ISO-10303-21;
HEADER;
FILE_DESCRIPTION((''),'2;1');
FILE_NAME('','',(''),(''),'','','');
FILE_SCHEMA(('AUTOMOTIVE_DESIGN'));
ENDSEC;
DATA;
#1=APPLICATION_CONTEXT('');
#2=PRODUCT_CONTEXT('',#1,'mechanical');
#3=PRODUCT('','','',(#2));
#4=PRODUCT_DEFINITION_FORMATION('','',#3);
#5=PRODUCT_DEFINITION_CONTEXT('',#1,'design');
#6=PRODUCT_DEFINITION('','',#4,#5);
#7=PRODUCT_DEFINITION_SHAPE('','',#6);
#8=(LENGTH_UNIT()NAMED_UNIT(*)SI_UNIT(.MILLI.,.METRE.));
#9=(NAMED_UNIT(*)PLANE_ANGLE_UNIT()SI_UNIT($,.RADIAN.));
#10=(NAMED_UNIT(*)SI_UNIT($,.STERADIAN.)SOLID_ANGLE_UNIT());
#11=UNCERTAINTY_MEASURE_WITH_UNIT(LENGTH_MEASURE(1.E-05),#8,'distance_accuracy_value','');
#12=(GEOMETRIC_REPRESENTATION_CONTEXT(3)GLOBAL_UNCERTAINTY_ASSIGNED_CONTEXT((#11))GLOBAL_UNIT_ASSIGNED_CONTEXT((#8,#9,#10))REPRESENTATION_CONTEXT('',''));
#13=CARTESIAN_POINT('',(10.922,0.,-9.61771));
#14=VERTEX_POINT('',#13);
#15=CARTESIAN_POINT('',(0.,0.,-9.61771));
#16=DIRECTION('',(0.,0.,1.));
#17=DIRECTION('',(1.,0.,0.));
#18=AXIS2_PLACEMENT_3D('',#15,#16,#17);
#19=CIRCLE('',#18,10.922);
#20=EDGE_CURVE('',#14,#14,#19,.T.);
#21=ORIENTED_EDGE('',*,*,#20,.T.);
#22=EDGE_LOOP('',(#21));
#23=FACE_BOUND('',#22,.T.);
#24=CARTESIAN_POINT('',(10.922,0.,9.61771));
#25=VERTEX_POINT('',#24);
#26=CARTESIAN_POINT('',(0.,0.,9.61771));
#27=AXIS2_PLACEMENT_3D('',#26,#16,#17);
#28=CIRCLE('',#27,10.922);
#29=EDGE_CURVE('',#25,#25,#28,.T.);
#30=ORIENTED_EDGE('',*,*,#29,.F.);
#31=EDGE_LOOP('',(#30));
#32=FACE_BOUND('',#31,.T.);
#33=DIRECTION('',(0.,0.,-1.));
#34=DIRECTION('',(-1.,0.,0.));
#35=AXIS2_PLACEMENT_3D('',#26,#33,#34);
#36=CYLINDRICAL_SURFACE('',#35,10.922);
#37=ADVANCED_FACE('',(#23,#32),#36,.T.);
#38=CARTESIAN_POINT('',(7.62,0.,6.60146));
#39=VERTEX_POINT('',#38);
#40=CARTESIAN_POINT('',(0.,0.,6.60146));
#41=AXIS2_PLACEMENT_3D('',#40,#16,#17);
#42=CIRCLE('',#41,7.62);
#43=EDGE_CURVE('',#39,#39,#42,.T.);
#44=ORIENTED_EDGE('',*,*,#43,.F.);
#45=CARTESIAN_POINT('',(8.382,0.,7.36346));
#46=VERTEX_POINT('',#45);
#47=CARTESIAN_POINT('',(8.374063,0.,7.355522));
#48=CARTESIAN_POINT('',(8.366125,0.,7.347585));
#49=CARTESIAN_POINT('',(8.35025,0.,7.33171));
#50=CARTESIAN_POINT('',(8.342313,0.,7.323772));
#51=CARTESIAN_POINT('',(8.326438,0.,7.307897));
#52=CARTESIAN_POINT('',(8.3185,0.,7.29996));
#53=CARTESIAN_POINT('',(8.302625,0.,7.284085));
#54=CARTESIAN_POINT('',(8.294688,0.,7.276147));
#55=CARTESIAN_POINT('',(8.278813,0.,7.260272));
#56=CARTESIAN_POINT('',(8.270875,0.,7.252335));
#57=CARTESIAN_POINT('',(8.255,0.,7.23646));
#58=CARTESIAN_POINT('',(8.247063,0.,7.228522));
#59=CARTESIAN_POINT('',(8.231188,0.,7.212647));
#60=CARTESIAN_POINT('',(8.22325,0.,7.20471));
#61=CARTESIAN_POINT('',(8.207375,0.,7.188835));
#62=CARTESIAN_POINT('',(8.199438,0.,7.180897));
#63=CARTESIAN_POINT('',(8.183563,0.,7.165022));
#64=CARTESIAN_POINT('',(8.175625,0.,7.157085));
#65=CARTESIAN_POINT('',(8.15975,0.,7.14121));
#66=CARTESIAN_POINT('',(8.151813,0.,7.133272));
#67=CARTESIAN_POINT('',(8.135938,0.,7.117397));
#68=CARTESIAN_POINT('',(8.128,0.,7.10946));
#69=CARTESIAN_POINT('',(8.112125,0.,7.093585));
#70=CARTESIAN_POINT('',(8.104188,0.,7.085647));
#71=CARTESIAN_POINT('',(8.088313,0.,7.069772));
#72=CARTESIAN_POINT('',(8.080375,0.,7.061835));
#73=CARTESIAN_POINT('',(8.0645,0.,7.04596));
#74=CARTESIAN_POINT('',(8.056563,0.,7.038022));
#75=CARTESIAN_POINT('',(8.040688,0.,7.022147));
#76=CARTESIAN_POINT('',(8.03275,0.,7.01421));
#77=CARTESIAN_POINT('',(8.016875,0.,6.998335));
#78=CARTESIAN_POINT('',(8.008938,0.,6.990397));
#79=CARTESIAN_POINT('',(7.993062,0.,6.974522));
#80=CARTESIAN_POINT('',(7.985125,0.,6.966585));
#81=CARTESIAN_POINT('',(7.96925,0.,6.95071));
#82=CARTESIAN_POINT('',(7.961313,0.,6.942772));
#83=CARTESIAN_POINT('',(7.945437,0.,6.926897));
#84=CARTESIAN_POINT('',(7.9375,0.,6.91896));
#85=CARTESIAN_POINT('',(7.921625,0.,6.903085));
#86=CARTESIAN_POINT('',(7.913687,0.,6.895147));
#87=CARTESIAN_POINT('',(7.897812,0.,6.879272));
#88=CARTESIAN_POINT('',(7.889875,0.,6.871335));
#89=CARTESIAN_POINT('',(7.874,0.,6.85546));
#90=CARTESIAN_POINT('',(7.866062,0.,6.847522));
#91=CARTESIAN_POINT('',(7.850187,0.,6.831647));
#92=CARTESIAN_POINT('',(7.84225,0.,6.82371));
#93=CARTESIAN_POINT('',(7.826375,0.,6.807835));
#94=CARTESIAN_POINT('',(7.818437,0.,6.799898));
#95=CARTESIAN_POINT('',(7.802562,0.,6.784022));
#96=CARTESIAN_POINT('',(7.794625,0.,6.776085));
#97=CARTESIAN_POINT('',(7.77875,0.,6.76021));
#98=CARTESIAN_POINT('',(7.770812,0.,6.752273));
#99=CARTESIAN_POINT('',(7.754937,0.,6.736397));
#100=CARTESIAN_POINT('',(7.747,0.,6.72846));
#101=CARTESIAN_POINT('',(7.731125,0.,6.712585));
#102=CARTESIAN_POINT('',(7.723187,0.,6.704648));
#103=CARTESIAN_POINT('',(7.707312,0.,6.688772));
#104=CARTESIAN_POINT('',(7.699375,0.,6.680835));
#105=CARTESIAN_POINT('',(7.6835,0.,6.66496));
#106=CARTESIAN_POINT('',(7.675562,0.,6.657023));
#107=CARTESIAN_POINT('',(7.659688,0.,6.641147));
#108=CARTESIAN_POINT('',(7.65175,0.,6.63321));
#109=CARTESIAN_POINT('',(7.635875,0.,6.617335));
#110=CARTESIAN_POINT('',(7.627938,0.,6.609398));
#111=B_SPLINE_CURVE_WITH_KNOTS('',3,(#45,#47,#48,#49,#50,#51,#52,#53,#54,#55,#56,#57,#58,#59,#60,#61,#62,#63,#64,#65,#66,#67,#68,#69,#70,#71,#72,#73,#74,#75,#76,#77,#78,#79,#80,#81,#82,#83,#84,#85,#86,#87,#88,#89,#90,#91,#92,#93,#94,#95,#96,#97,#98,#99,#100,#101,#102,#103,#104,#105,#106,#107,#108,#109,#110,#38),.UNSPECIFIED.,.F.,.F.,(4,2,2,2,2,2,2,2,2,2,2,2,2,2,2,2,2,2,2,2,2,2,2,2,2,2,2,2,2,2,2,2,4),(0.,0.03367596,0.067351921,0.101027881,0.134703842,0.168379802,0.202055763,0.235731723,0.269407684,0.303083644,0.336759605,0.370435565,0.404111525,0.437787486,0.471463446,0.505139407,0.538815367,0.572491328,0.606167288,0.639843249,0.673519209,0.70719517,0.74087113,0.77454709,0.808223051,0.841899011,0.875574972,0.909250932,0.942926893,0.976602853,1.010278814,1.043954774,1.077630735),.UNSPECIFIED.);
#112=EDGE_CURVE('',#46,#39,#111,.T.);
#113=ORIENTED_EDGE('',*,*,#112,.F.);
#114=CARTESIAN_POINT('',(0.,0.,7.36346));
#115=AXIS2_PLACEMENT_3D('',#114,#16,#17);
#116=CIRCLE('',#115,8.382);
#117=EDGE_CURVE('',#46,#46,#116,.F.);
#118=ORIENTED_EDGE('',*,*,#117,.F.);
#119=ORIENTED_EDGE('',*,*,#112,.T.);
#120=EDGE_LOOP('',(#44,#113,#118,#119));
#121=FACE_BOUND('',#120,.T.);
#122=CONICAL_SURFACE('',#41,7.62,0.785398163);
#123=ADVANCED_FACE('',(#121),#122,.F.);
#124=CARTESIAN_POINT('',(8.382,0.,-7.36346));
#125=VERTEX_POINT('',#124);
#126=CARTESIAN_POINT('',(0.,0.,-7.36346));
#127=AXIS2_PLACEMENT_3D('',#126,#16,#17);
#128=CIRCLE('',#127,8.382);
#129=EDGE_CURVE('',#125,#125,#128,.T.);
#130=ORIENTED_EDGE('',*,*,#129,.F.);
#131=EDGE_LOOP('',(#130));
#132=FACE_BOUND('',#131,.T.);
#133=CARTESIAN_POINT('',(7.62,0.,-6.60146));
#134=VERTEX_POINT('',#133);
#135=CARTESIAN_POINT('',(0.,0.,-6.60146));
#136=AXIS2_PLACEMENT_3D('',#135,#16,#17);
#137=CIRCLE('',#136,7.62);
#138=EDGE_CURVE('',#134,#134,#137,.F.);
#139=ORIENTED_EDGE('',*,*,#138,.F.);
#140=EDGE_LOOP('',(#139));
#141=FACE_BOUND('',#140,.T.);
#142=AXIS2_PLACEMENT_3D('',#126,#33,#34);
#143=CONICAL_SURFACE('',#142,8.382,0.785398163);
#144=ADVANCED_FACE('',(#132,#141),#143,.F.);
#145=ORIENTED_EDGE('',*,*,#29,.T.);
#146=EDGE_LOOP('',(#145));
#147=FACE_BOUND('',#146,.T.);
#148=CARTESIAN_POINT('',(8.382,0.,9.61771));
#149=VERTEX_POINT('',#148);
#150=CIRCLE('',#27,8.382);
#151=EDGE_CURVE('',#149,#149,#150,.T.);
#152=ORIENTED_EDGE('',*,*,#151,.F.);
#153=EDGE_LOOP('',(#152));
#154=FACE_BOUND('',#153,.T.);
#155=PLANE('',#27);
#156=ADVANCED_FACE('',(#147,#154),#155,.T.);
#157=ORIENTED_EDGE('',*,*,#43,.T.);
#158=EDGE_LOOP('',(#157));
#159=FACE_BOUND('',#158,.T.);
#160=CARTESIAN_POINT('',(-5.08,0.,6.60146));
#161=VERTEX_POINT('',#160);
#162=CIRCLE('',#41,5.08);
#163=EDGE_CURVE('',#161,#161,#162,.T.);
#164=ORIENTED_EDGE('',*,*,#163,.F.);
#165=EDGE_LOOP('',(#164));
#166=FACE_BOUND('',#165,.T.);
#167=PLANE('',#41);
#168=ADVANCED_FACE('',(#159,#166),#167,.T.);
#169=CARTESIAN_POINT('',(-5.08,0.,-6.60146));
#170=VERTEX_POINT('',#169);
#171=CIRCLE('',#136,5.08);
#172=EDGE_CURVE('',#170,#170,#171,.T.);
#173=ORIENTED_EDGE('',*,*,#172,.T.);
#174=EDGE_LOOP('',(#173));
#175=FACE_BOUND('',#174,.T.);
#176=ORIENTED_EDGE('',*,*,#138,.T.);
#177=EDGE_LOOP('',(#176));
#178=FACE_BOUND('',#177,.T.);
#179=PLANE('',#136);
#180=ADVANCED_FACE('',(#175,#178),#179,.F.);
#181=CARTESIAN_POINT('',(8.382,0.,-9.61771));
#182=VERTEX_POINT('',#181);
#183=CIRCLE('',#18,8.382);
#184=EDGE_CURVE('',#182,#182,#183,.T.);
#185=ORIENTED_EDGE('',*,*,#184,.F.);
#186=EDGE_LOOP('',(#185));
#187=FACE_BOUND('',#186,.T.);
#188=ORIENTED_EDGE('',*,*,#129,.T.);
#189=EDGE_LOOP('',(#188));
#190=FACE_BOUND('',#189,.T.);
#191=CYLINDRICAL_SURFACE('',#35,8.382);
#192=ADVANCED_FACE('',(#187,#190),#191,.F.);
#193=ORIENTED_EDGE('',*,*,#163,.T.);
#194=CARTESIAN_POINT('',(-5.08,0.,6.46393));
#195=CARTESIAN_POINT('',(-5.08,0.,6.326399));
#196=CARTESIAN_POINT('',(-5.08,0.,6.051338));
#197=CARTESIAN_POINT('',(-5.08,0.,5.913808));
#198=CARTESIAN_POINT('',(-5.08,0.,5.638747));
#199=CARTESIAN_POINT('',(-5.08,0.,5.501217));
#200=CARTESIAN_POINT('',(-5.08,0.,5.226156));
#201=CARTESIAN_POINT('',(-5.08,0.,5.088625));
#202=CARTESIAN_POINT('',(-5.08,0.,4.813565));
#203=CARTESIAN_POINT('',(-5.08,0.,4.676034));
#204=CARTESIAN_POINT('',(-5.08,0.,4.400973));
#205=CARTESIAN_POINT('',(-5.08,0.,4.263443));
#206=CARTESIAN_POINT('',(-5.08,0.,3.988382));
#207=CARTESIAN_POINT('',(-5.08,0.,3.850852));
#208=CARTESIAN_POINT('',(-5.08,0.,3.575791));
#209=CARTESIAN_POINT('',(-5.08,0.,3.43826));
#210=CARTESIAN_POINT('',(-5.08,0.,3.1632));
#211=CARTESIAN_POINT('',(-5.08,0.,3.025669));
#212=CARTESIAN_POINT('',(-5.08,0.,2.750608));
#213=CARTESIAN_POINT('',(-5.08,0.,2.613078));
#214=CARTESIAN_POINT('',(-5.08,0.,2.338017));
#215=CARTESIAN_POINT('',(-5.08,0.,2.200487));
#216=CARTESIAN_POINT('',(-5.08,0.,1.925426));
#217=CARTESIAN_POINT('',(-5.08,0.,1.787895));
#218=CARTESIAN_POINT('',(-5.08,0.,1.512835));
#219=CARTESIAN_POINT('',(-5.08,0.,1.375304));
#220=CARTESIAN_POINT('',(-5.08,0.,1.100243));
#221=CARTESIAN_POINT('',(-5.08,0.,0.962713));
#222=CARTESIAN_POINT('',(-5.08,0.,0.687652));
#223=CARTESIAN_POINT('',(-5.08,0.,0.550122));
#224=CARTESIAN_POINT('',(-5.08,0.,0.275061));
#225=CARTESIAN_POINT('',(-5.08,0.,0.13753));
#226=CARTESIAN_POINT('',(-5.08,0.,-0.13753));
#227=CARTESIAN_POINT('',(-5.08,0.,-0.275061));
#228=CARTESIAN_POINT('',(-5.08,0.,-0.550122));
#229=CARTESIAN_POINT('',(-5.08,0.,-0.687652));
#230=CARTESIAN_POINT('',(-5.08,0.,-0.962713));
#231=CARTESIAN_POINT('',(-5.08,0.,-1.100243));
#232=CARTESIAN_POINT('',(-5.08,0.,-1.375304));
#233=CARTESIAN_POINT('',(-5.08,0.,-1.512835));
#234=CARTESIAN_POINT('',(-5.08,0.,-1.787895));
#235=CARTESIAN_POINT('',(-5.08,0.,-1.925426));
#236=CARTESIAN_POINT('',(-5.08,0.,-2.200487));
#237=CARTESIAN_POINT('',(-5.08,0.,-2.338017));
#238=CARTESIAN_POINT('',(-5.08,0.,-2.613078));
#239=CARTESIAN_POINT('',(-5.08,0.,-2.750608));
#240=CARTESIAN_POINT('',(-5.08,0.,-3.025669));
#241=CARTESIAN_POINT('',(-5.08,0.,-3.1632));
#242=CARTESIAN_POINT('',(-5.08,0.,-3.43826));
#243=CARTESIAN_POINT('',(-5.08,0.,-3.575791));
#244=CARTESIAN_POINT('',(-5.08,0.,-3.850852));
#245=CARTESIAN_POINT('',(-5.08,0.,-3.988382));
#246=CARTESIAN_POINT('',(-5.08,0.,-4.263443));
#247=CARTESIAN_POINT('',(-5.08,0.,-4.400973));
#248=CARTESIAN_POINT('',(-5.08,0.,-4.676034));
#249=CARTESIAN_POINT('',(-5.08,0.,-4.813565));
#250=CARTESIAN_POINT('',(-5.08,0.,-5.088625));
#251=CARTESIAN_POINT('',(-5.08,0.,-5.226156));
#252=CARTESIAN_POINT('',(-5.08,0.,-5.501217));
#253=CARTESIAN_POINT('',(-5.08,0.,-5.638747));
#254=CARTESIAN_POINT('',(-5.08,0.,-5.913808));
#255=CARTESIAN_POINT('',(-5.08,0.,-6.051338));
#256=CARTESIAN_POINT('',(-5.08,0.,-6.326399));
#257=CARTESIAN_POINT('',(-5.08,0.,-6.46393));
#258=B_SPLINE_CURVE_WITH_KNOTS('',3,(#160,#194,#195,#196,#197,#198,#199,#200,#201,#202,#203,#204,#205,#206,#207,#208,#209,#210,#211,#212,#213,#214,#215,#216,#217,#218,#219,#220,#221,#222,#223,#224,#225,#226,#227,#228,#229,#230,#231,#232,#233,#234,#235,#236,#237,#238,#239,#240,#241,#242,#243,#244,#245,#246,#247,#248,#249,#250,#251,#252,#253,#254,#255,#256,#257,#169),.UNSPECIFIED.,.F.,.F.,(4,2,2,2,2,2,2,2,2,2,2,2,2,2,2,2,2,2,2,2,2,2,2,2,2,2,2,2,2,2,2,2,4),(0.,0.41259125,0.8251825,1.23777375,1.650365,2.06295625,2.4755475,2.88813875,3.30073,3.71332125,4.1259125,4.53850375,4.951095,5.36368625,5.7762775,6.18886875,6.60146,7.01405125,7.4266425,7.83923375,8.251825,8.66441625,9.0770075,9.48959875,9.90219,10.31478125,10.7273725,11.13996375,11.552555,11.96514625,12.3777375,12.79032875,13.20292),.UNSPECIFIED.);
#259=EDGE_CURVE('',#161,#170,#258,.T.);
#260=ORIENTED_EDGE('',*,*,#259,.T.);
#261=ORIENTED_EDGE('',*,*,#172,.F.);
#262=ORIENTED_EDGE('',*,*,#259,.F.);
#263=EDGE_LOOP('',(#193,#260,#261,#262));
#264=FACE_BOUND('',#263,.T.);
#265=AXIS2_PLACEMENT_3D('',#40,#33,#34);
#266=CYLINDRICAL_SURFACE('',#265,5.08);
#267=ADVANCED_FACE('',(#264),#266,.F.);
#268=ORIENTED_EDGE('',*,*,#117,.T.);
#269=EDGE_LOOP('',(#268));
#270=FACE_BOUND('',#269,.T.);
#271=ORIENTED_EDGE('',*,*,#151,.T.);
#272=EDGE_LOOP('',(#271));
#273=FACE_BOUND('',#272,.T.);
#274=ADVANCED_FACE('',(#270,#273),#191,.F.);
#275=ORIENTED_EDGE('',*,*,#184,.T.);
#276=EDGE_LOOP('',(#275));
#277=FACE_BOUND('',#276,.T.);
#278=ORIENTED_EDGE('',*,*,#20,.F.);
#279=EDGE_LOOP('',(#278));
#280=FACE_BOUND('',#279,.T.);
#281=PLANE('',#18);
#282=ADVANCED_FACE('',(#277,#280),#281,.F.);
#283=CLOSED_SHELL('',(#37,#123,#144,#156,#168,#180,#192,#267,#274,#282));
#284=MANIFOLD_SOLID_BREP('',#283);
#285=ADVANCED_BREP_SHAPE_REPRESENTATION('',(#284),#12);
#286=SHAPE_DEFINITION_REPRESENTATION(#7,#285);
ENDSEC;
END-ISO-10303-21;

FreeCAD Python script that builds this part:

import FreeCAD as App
import Part
import Sketcher
Q = App.Units.Quantity


def edges_at(feature, points):
    """Names of the edges that pass closest to the given points."""
    edges = feature.Shape.Edges
    near = lambda p: min(range(len(edges)), key=lambda i: edges[i].distToShape(Part.Vertex(*p))[0])
    return sorted({f"Edge{near(p) + 1}" for p in points})

doc = App.newDocument("Part")
params = doc.addObject("Spreadsheet::Sheet", "Params")
for row, (alias, value) in enumerate([
    ("sketch1_diameter", "0.86 in"),
    ("sketch1_diameter2", "0.66 in"),
    ("pad1_length", "0.7573 in"),
    ("sketch2_diameter", "0.4 in"),
    ("sketch2_diameter2", "0.66 in"),
    ("pad2_length", "0.5198 in"),
    ("chamfer_size", "0.03 in"),
], start=1):
    params.set(f"A{row}", alias)
    params.set(f"B{row}", "=" + value)
    params.setAlias(f"B{row}", alias)

body = doc.addObject("PartDesign::Body", "Body")

sketch1 = body.newObject("Sketcher::SketchObject", "Sketch")
sketch1.AttachmentSupport = (doc.getObject("XY_Plane"), [""])
sketch1.MapMode = "FlatFace"
sketch1.addGeometry(Part.Circle(App.Vector(0, 0, 0), App.Vector(0, 0, 1), 11), False)
sketch1.addGeometry(Part.Circle(App.Vector(0, 0, 0), App.Vector(0, 0, 1), 8), False)
sketch1.addConstraint(Sketcher.Constraint("Coincident", 0, 3, -1, 1))
sketch1.addConstraint(Sketcher.Constraint("Coincident", 1, 3, -1, 1))
sketch1.addConstraint(Sketcher.Constraint("Diameter", 0, Q("0.86 in")))
sketch1.addConstraint(Sketcher.Constraint("Diameter", 1, Q("0.66 in")))
sketch1.setExpression("Constraints[2]", "Params.sketch1_diameter")
sketch1.setExpression("Constraints[3]", "Params.sketch1_diameter2")
pad1 = body.newObject("PartDesign::Pad", "Pad")
pad1.Profile = sketch1
pad1.setExpression("Length", "Params.pad1_length")
pad1.Midplane = True

sketch2 = body.newObject("Sketcher::SketchObject", "Sketch001")
sketch2.AttachmentSupport = (doc.getObject("XY_Plane"), [""])
sketch2.MapMode = "FlatFace"
sketch2.addGeometry(Part.Circle(App.Vector(0, 0, 0), App.Vector(0, 0, 1), 8), False)
sketch2.addGeometry(Part.Circle(App.Vector(0, 0, 0), App.Vector(0, 0, 1), 5), False)
sketch2.addConstraint(Sketcher.Constraint("Coincident", 0, 3, -1, 1))
sketch2.addConstraint(Sketcher.Constraint("Coincident", 1, 3, -1, 1))
sketch2.addConstraint(Sketcher.Constraint("Diameter", 1, Q("0.4 in")))
sketch2.addConstraint(Sketcher.Constraint("Diameter", 0, Q("0.66 in")))
sketch2.setExpression("Constraints[2]", "Params.sketch2_diameter")
sketch2.setExpression("Constraints[3]", "Params.sketch2_diameter2")
pad2 = body.newObject("PartDesign::Pad", "Pad001")
pad2.Profile = sketch2
pad2.setExpression("Length", "Params.pad2_length")
pad2.Midplane = True
doc.recompute()

chamfer = body.newObject("PartDesign::Chamfer", "Chamfer")
chamfer.Base = (pad2, edges_at(pad2, [(-8.382, 0, -6.601), (-8.382, 0, 6.601)]))
chamfer.setExpression("Size", "Params.chamfer_size")

doc.recompute()
